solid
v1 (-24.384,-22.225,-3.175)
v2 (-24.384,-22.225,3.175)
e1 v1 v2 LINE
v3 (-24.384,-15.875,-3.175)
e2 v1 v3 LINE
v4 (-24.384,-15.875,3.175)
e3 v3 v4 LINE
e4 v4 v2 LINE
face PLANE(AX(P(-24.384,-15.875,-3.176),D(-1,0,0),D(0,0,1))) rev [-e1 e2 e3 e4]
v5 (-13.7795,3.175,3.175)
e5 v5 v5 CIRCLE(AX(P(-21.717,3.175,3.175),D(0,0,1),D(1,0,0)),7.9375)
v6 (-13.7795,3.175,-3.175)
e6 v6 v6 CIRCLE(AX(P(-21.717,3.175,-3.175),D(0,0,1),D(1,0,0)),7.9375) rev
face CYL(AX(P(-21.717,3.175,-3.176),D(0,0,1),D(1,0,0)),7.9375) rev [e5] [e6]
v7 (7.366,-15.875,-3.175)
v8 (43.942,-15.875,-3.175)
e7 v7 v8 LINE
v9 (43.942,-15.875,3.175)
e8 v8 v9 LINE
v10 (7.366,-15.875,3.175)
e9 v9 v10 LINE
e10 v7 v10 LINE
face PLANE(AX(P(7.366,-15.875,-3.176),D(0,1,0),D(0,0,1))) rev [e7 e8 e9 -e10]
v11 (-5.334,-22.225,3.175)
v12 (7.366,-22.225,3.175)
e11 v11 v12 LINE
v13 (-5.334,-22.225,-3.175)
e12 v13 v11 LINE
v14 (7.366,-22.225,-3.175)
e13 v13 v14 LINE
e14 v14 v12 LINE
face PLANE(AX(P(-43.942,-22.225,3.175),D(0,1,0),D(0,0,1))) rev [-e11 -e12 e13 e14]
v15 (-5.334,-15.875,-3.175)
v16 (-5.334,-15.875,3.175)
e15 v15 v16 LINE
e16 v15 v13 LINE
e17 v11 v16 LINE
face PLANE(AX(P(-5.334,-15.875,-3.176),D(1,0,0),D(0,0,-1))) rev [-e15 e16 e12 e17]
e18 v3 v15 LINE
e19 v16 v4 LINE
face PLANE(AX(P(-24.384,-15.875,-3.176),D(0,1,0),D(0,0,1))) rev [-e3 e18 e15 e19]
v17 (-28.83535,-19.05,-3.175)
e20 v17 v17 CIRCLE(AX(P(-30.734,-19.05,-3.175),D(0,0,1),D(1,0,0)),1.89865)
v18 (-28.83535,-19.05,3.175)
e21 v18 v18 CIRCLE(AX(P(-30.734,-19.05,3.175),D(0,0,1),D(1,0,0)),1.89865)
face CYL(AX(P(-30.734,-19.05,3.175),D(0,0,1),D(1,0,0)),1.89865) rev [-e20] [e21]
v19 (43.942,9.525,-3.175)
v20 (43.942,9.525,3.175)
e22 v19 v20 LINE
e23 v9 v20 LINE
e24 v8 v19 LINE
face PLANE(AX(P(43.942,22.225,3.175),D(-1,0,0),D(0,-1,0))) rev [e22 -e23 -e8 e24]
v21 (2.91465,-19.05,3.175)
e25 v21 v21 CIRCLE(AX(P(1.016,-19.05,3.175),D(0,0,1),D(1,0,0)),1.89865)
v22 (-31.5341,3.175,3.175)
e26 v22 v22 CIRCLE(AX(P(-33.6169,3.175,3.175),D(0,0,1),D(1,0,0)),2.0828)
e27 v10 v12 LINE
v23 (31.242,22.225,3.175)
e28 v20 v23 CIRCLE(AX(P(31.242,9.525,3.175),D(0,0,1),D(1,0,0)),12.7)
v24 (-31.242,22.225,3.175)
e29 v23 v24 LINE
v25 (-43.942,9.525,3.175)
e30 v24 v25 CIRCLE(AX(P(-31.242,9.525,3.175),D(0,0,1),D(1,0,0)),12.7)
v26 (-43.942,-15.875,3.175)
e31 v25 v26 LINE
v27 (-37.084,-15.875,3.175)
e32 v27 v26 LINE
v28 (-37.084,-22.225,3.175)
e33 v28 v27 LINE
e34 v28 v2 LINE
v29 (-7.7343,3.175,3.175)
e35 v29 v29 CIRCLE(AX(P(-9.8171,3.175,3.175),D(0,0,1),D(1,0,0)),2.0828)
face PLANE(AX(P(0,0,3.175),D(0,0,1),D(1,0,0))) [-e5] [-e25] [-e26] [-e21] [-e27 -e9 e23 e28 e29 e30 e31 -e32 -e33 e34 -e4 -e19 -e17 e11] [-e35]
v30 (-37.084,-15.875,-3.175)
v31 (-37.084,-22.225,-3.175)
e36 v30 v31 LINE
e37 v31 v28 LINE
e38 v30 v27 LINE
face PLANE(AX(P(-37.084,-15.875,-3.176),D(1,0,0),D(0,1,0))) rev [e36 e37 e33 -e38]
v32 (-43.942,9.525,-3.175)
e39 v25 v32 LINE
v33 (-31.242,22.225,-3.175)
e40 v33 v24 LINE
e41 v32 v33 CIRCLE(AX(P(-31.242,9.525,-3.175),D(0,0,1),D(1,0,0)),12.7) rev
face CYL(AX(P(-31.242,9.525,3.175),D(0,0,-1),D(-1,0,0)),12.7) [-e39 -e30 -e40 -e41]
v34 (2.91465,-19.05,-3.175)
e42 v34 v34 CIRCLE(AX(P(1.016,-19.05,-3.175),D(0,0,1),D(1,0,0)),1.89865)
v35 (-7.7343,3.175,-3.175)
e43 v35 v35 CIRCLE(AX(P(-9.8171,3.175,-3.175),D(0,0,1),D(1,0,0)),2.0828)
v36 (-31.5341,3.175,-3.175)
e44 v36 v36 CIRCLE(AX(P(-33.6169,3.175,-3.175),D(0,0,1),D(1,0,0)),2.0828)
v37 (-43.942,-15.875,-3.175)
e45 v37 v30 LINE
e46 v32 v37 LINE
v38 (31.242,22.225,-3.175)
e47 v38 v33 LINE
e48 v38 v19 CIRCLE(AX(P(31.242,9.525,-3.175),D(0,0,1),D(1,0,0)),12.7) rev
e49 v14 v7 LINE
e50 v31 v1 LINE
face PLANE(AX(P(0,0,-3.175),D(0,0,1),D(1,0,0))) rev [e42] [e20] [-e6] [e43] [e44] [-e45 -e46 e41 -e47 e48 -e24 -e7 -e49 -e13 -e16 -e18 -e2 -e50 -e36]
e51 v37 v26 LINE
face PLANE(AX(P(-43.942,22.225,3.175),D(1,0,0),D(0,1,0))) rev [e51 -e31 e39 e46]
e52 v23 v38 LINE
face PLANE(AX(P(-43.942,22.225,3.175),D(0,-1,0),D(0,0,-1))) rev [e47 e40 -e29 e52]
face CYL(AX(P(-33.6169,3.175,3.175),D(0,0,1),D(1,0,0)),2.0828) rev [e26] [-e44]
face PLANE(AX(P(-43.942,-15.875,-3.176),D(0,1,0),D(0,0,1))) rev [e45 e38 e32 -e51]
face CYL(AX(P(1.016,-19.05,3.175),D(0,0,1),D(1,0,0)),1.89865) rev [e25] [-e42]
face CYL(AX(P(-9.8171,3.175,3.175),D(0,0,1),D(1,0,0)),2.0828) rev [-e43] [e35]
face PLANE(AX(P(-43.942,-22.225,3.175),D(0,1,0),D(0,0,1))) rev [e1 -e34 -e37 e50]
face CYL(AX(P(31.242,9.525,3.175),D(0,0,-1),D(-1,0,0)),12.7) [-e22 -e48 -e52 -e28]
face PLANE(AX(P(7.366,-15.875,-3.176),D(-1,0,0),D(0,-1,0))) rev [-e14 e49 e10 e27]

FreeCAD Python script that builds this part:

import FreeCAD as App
import Part
import Sketcher

V = App.Vector
Q = App.Units.Quantity


def edges_at(feature, points):
    """Names of the edges that pass closest to the given points."""
    edges = feature.Shape.Edges
    near = lambda p: min(range(len(edges)), key=lambda i: edges[i].distToShape(Part.Vertex(*p))[0])
    return sorted({f"Edge{near(p) + 1}" for p in points})

doc = App.newDocument("Part")
params = doc.addObject("Spreadsheet::Sheet", "Params")
for row, (alias, value) in enumerate([
    ("sketch1_width", "3.46 in"),
    ("sketch1_height", "1.75 in"),
    ("pad1_length", "0.25 in"),
    ("sketch2_diameter", "0.625 in"),
    ("sketch3_diameter", "0.164 in"),
    ("hole_diameter", "0.164 in"),
    ("sketch4_width", "0.27 in"),
    ("sketch4_height", "0.25 in"),
    ("sketch5_width", "0.75 in"),
    ("sketch5_height", "0.25 in"),
    ("sketch6_width", "1.44 in"),
    ("sketch6_height", "0.25 in"),
    ("hole2_diameter", "0.1495 in"),
    ("hole2_depth", "0.25 in"),
    ("fillet_radius", "0.5 in"),
], start=1):
    params.set(f"A{row}", alias)
    params.set(f"B{row}", "=" + value)
    params.setAlias(f"B{row}", alias)

body = doc.addObject("PartDesign::Body", "Body")

# Sketch on XY plane
sketch1 = body.newObject("Sketcher::SketchObject", "Sketch")
sketch1.AttachmentSupport = (doc.getObject("XY_Plane"), [""])
sketch1.MapMode = "FlatFace"
sketch1.addGeometry(Part.LineSegment(V(-44, 22, 0), V(-44, -22, 0)), False)
sketch1.addGeometry(Part.LineSegment(V(-44, -22, 0), V(44, -22, 0)), False)
sketch1.addGeometry(Part.LineSegment(V(44, -22, 0), V(44, 22, 0)), False)
sketch1.addGeometry(Part.LineSegment(V(44, 22, 0), V(-44, 22, 0)), False)
sketch1.addConstraint(Sketcher.Constraint("Coincident", 0, 2, 1, 1))
sketch1.addConstraint(Sketcher.Constraint("Coincident", 1, 2, 2, 1))
sketch1.addConstraint(Sketcher.Constraint("Coincident", 2, 2, 3, 1))
sketch1.addConstraint(Sketcher.Constraint("Coincident", 3, 2, 0, 1))
sketch1.addConstraint(Sketcher.Constraint("Vertical", 0))
sketch1.addConstraint(Sketcher.Constraint("Horizontal", 1))
sketch1.addConstraint(Sketcher.Constraint("Vertical", 2))
sketch1.addConstraint(Sketcher.Constraint("Horizontal", 3))
sketch1.addConstraint(Sketcher.Constraint("Symmetric", 0, 2, 2, 2, -1, 1))
sketch1.addConstraint(Sketcher.Constraint("DistanceX", 1, 1, 1, 2, Q("3.46 in")))
sketch1.addConstraint(Sketcher.Constraint("DistanceY", 0, 2, 0, 1, Q("1.75 in")))
sketch1.setExpression("Constraints[9]", "Params.sketch1_width")
sketch1.setExpression("Constraints[10]", "Params.sketch1_height")
pad1 = body.newObject("PartDesign::Pad", "Pad")
pad1.Profile = sketch1
pad1.setExpression("Length", "Params.pad1_length")
pad1.Midplane = True

# Sketch on XY plane
sketch2 = body.newObject("Sketcher::SketchObject", "Sketch001")
sketch2.AttachmentSupport = (doc.getObject("XY_Plane"), [""])
sketch2.MapMode = "FlatFace"
sketch2.AttachmentOffset = App.Placement(V(0, 0, 0.125 * 25.4), App.Rotation())
sketch2.addGeometry(Part.Circle(V(-22, 3, 0), V(0, 0, 1), 8), False)
sketch2.addConstraint(Sketcher.Constraint("Diameter", 0, Q("0.625 in")))
sketch2.addConstraint(Sketcher.Constraint("DistanceX", 0, 3, -1, 1, Q("0.855 in")))
sketch2.addConstraint(Sketcher.Constraint("DistanceY", -1, 1, 0, 3, Q("0.125 in")))
sketch2.setExpression("Constraints[0]", "Params.sketch2_diameter")
pocket1 = body.newObject("PartDesign::Pocket", "Pocket")
pocket1.Profile = sketch2
pocket1.Type = "UpToFirst"

# Sketch on XY plane
sketch3 = body.newObject("Sketcher::SketchObject", "Sketch002")
sketch3.AttachmentSupport = (doc.getObject("XY_Plane"), [""])
sketch3.MapMode = "FlatFace"
sketch3.AttachmentOffset = App.Placement(V(0, 0, 0.125 * 25.4), App.Rotation())
sketch3.addGeometry(Part.Circle(V(-33.6, 3.2, 0), V(0, 0, 1), 2.1), False)
sketch3.addConstraint(Sketcher.Constraint("Diameter", 0, Q("0.164 in")))
sketch3.addConstraint(Sketcher.Constraint("DistanceY", -1, 1, 0, 3, Q("0.125 in")))
sketch3.addConstraint(Sketcher.Constraint("DistanceX", 0, 3, -1, 1, Q("1.3235 in")))
sketch3.setExpression("Constraints[0]", "Params.sketch3_diameter")
doc.recompute()
hole = body.newObject("PartDesign::Hole", "Hole")
hole.Profile = sketch3
hole.ThreadType = "None"
hole.setExpression("Diameter", "Params.hole_diameter")
hole.DepthType = "ThroughAll"
doc.recompute()

datumline = body.newObject("PartDesign::Line", "DatumLine")
datumline.Placement = App.Placement(V(-21.717, 3.175, 0), App.Rotation(V(0, 0, 1), V(0, 0, 1)))
polarpattern = body.newObject("PartDesign::PolarPattern", "PolarPattern")
polarpattern.Originals = [hole]
polarpattern.Axis = (datumline, [""])
polarpattern.Angle = 360
polarpattern.Occurrences = 2
body.Tip = polarpattern

# Sketch on XY plane
sketch4 = body.newObject("Sketcher::SketchObject", "Sketch003")
sketch4.AttachmentSupport = (doc.getObject("XY_Plane"), [""])
sketch4.MapMode = "FlatFace"
sketch4.AttachmentOffset = App.Placement(V(0, 0, 0.125 * 25.4), App.Rotation())
sketch4.addGeometry(Part.LineSegment(V(-44, -16, 0), V(-44, -22, 0)), False)
sketch4.addGeometry(Part.LineSegment(V(-44, -22, 0), V(-37, -22, 0)), False)
sketch4.addGeometry(Part.LineSegment(V(-37, -22, 0), V(-37, -16, 0)), False)
sketch4.addGeometry(Part.LineSegment(V(-37, -16, 0), V(-44, -16, 0)), False)
sketch4.addConstraint(Sketcher.Constraint("Coincident", 0, 2, 1, 1))
sketch4.addConstraint(Sketcher.Constraint("Coincident", 1, 2, 2, 1))
sketch4.addConstraint(Sketcher.Constraint("Coincident", 2, 2, 3, 1))
sketch4.addConstraint(Sketcher.Constraint("Coincident", 3, 2, 0, 1))
sketch4.addConstraint(Sketcher.Constraint("Vertical", 0))
sketch4.addConstraint(Sketcher.Constraint("Horizontal", 1))
sketch4.addConstraint(Sketcher.Constraint("Vertical", 2))
sketch4.addConstraint(Sketcher.Constraint("Horizontal", 3))
sketch4.addConstraint(Sketcher.Constraint("DistanceX", 1, 1, 1, 2, Q("0.27 in")))
sketch4.addConstraint(Sketcher.Constraint("DistanceY", 0, 2, 0, 1, Q("0.25 in")))
sketch4.addConstraint(Sketcher.Constraint("DistanceX", 0, 2, -1, 1, Q("1.73 in")))
sketch4.addConstraint(Sketcher.Constraint("DistanceY", 0, 2, -1, 1, Q("0.875 in")))
sketch4.setExpression("Constraints[8]", "Params.sketch4_width")
sketch4.setExpression("Constraints[9]", "Params.sketch4_height")
pocket2 = body.newObject("PartDesign::Pocket", "Pocket001")
pocket2.Profile = sketch4
pocket2.Type = "UpToFirst"

# Sketch on XY plane
sketch5 = body.newObject("Sketcher::SketchObject", "Sketch004")
sketch5.AttachmentSupport = (doc.getObject("XY_Plane"), [""])
sketch5.MapMode = "FlatFace"
sketch5.AttachmentOffset = App.Placement(V(0, 0, 0.125 * 25.4), App.Rotation())
sketch5.addGeometry(Part.LineSegment(V(-24, -16, 0), V(-24, -22, 0)), False)
sketch5.addGeometry(Part.LineSegment(V(-24, -22, 0), V(-5, -22, 0)), False)
sketch5.addGeometry(Part.LineSegment(V(-5, -22, 0), V(-5, -16, 0)), False)
sketch5.addGeometry(Part.LineSegment(V(-5, -16, 0), V(-24, -16, 0)), False)
sketch5.addConstraint(Sketcher.Constraint("Coincident", 0, 2, 1, 1))
sketch5.addConstraint(Sketcher.Constraint("Coincident", 1, 2, 2, 1))
sketch5.addConstraint(Sketcher.Constraint("Coincident", 2, 2, 3, 1))
sketch5.addConstraint(Sketcher.Constraint("Coincident", 3, 2, 0, 1))
sketch5.addConstraint(Sketcher.Constraint("Vertical", 0))
sketch5.addConstraint(Sketcher.Constraint("Horizontal", 1))
sketch5.addConstraint(Sketcher.Constraint("Vertical", 2))
sketch5.addConstraint(Sketcher.Constraint("Horizontal", 3))
sketch5.addConstraint(Sketcher.Constraint("DistanceX", 1, 1, 1, 2, Q("0.75 in")))
sketch5.addConstraint(Sketcher.Constraint("DistanceY", 0, 2, 0, 1, Q("0.25 in")))
sketch5.addConstraint(Sketcher.Constraint("DistanceX", 0, 2, -1, 1, Q("0.96 in")))
sketch5.addConstraint(Sketcher.Constraint("DistanceY", 0, 2, -1, 1, Q("0.875 in")))
sketch5.setExpression("Constraints[8]", "Params.sketch5_width")
sketch5.setExpression("Constraints[9]", "Params.sketch5_height")
pocket3 = body.newObject("PartDesign::Pocket", "Pocket002")
pocket3.Profile = sketch5
pocket3.Type = "UpToFirst"

# Sketch on XY plane
sketch6 = body.newObject("Sketcher::SketchObject", "Sketch005")
sketch6.AttachmentSupport = (doc.getObject("XY_Plane"), [""])
sketch6.MapMode = "FlatFace"
sketch6.AttachmentOffset = App.Placement(V(0, 0, 0.125 * 25.4), App.Rotation())
sketch6.addGeometry(Part.LineSegment(V(7, -16, 0), V(7, -22, 0)), False)
sketch6.addGeometry(Part.LineSegment(V(7, -22, 0), V(44, -22, 0)), False)
sketch6.addGeometry(Part.LineSegment(V(44, -22, 0), V(44, -16, 0)), False)
sketch6.addGeometry(Part.LineSegment(V(44, -16, 0), V(7, -16, 0)), False)
sketch6.addConstraint(Sketcher.Constraint("Coincident", 0, 2, 1, 1))
sketch6.addConstraint(Sketcher.Constraint("Coincident", 1, 2, 2, 1))
sketch6.addConstraint(Sketcher.Constraint("Coincident", 2, 2, 3, 1))
sketch6.addConstraint(Sketcher.Constraint("Coincident", 3, 2, 0, 1))
sketch6.addConstraint(Sketcher.Constraint("Vertical", 0))
sketch6.addConstraint(Sketcher.Constraint("Horizontal", 1))
sketch6.addConstraint(Sketcher.Constraint("Vertical", 2))
sketch6.addConstraint(Sketcher.Constraint("Horizontal", 3))
sketch6.addConstraint(Sketcher.Constraint("DistanceX", 1, 1, 1, 2, Q("1.44 in")))
sketch6.addConstraint(Sketcher.Constraint("DistanceY", 0, 2, 0, 1, Q("0.25 in")))
sketch6.addConstraint(Sketcher.Constraint("DistanceX", -1, 1, 0, 2, Q("0.29 in")))
sketch6.addConstraint(Sketcher.Constraint("DistanceY", 0, 2, -1, 1, Q("0.875 in")))
sketch6.setExpression("Constraints[8]", "Params.sketch6_width")
sketch6.setExpression("Constraints[9]", "Params.sketch6_height")
pocket4 = body.newObject("PartDesign::Pocket", "Pocket003")
pocket4.Profile = sketch6
pocket4.Type = "UpToFirst"

# Sketch on XY plane
sketch7 = body.newObject("Sketcher::SketchObject", "Sketch006")
sketch7.AttachmentSupport = (doc.getObject("XY_Plane"), [""])
sketch7.MapMode = "FlatFace"
sketch7.AttachmentOffset = App.Placement(V(0, 0, 0.125 * 25.4), App.Rotation())
sketch7.addGeometry(Part.Circle(V(1, -19.1, 0), V(0, 0, 1), 1.9), False)
sketch7.addGeometry(Part.Circle(V(-30.7, -19.1, 0), V(0, 0, 1), 1.9), False)
sketch7.addConstraint(Sketcher.Constraint("Equal", 0, 1))
sketch7.addConstraint(Sketcher.Constraint("Horizontal", 0, 3, 1, 3))
sketch7.addConstraint(Sketcher.Constraint("Diameter", 0, Q("0.1495 in")))
sketch7.addConstraint(Sketcher.Constraint("DistanceX", -1, 1, 0, 3, Q("0.04 in")))
sketch7.addConstraint(Sketcher.Constraint("DistanceY", 0, 3, -1, 1, Q("0.75 in")))
sketch7.addConstraint(Sketcher.Constraint("DistanceX", 1, 3, -1, 1, Q("1.21 in")))
doc.recompute()
hole2 = body.newObject("PartDesign::Hole", "Hole001")
hole2.Profile = sketch7
hole2.ThreadType = "None"
hole2.setExpression("Diameter", "Params.hole2_diameter")
hole2.DepthType = "Dimension"
hole2.setExpression("Depth", "Params.hole2_depth")
hole2.DrillPoint = "Angled"
hole2.DrillPointAngle = 118
doc.recompute()

fillet = body.newObject("PartDesign::Fillet", "Fillet")
fillet.Base = (hole2, edges_at(hole2, [(-43.942, 22.225, 0), (43.942, 22.225, 0)]))
fillet.setExpression("Radius", "Params.fillet_radius")

doc.recompute()
